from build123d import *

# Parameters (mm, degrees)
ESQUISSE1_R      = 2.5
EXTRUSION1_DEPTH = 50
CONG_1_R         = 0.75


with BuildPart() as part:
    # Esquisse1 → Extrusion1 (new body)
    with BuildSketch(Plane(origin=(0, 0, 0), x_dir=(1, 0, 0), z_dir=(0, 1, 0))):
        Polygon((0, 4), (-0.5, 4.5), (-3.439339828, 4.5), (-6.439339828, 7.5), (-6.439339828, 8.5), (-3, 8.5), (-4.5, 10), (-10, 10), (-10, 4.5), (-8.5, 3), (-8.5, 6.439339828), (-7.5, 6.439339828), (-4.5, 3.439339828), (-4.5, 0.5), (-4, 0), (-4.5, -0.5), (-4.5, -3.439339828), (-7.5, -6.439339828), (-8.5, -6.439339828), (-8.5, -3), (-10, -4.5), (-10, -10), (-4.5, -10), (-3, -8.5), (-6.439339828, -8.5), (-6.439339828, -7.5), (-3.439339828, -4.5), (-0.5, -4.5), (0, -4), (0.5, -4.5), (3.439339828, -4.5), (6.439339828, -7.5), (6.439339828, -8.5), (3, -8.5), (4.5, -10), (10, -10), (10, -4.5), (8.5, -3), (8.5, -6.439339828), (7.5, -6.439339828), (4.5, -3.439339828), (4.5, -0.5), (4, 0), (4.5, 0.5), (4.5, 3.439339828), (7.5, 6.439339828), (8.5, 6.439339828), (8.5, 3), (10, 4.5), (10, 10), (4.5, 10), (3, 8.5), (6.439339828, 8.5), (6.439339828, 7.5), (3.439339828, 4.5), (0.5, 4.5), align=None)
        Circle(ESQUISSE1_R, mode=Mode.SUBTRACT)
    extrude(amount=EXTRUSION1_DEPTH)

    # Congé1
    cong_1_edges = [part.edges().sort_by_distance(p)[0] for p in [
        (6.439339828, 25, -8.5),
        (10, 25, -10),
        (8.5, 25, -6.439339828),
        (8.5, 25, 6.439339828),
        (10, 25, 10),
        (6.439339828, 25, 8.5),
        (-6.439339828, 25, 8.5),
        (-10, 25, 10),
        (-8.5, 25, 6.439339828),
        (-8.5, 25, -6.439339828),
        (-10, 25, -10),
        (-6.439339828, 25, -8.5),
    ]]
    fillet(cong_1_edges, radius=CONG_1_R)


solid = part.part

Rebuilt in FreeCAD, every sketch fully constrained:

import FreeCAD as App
import Part
import Sketcher
from FreeCAD import Vector
Q = App.Units.Quantity


def edges_at(feature, points):
    """Names of the edges that pass closest to the given points."""
    edges = feature.Shape.Edges
    near = lambda p: min(range(len(edges)), key=lambda i: edges[i].distToShape(Part.Vertex(*p))[0])
    return sorted({f"Edge{near(p) + 1}" for p in points})

doc = App.newDocument("Part")
body = doc.addObject("PartDesign::Body", "Body")

# Sketch on XZ plane
sketch1 = body.newObject("Sketcher::SketchObject", "Sketch")
sketch1.AttachmentSupport = (doc.getObject("XZ_Plane"), [""])
sketch1.MapMode = "FlatFace"
sketch1.addGeometry([
    Part.LineSegment(Vector(0, -4, 0), Vector(-0.5, -4.5, 0)),  # 0
    Part.LineSegment(Vector(-0.5, -4.5, 0), Vector(-3.4, -4.5, 0)),  # 1
    Part.LineSegment(Vector(-3.4, -4.5, 0), Vector(-6.4, -7.5, 0)),  # 2
    Part.LineSegment(Vector(-6.4, -7.5, 0), Vector(-6.4, -8.5, 0)),  # 3
    Part.LineSegment(Vector(-6.4, -8.5, 0), Vector(-3, -8.5, 0)),  # 4
    Part.LineSegment(Vector(-3, -8.5, 0), Vector(-4.5, -10, 0)),  # 5
    Part.LineSegment(Vector(-4.5, -10, 0), Vector(-10, -10, 0)),  # 6
    Part.LineSegment(Vector(-10, -10, 0), Vector(-10, -4.5, 0)),  # 7
    Part.LineSegment(Vector(-10, -4.5, 0), Vector(-8.5, -3, 0)),  # 8
    Part.LineSegment(Vector(-8.5, -3, 0), Vector(-8.5, -6.4, 0)),  # 9
    Part.LineSegment(Vector(-8.5, -6.4, 0), Vector(-7.5, -6.4, 0)),  # 10
    Part.LineSegment(Vector(-7.5, -6.4, 0), Vector(-4.5, -3.4, 0)),  # 11
    Part.LineSegment(Vector(-4.5, -3.4, 0), Vector(-4.5, -0.5, 0)),  # 12
    Part.LineSegment(Vector(-4.5, -0.5, 0), Vector(-4, 0, 0)),  # 13
    Part.LineSegment(Vector(-4, 0, 0), Vector(-4.5, 0.5, 0)),  # 14
    Part.LineSegment(Vector(-4.5, 0.5, 0), Vector(-4.5, 3.4, 0)),  # 15
    Part.LineSegment(Vector(-4.5, 3.4, 0), Vector(-7.5, 6.4, 0)),  # 16
    Part.LineSegment(Vector(-7.5, 6.4, 0), Vector(-8.5, 6.4, 0)),  # 17
    Part.LineSegment(Vector(-8.5, 6.4, 0), Vector(-8.5, 3, 0)),  # 18
    Part.LineSegment(Vector(-8.5, 3, 0), Vector(-10, 4.5, 0)),  # 19
    Part.LineSegment(Vector(-10, 4.5, 0), Vector(-10, 10, 0)),  # 20
    Part.LineSegment(Vector(-10, 10, 0), Vector(-4.5, 10, 0)),  # 21
    Part.LineSegment(Vector(-4.5, 10, 0), Vector(-3, 8.5, 0)),  # 22
    Part.LineSegment(Vector(-3, 8.5, 0), Vector(-6.4, 8.5, 0)),  # 23
    Part.LineSegment(Vector(-6.4, 8.5, 0), Vector(-6.4, 7.5, 0)),  # 24
    Part.LineSegment(Vector(-6.4, 7.5, 0), Vector(-3.4, 4.5, 0)),  # 25
    Part.LineSegment(Vector(-3.4, 4.5, 0), Vector(-0.5, 4.5, 0)),  # 26
    Part.LineSegment(Vector(-0.5, 4.5, 0), Vector(0, 4, 0)),  # 27
    Part.LineSegment(Vector(0, 4, 0), Vector(0.5, 4.5, 0)),  # 28
    Part.LineSegment(Vector(0.5, 4.5, 0), Vector(3.4, 4.5, 0)),  # 29
    Part.LineSegment(Vector(3.4, 4.5, 0), Vector(6.4, 7.5, 0)),  # 30
    Part.LineSegment(Vector(6.4, 7.5, 0), Vector(6.4, 8.5, 0)),  # 31
    Part.LineSegment(Vector(6.4, 8.5, 0), Vector(3, 8.5, 0)),  # 32
    Part.LineSegment(Vector(3, 8.5, 0), Vector(4.5, 10, 0)),  # 33
    Part.LineSegment(Vector(4.5, 10, 0), Vector(10, 10, 0)),  # 34
    Part.LineSegment(Vector(10, 10, 0), Vector(10, 4.5, 0)),  # 35
    Part.LineSegment(Vector(10, 4.5, 0), Vector(8.5, 3, 0)),  # 36
    Part.LineSegment(Vector(8.5, 3, 0), Vector(8.5, 6.4, 0)),  # 37
    Part.LineSegment(Vector(8.5, 6.4, 0), Vector(7.5, 6.4, 0)),  # 38
    Part.LineSegment(Vector(7.5, 6.4, 0), Vector(4.5, 3.4, 0)),  # 39
    Part.LineSegment(Vector(4.5, 3.4, 0), Vector(4.5, 0.5, 0)),  # 40
    Part.LineSegment(Vector(4.5, 0.5, 0), Vector(4, 0, 0)),  # 41
    Part.LineSegment(Vector(4, 0, 0), Vector(4.5, -0.5, 0)),  # 42
    Part.LineSegment(Vector(4.5, -0.5, 0), Vector(4.5, -3.4, 0)),  # 43
    Part.LineSegment(Vector(4.5, -3.4, 0), Vector(7.5, -6.4, 0)),  # 44
    Part.LineSegment(Vector(7.5, -6.4, 0), Vector(8.5, -6.4, 0)),  # 45
    Part.LineSegment(Vector(8.5, -6.4, 0), Vector(8.5, -3, 0)),  # 46
    Part.LineSegment(Vector(8.5, -3, 0), Vector(10, -4.5, 0)),  # 47
    Part.LineSegment(Vector(10, -4.5, 0), Vector(10, -10, 0)),  # 48
    Part.LineSegment(Vector(10, -10, 0), Vector(4.5, -10, 0)),  # 49
    Part.LineSegment(Vector(4.5, -10, 0), Vector(3, -8.5, 0)),  # 50
    Part.LineSegment(Vector(3, -8.5, 0), Vector(6.4, -8.5, 0)),  # 51
    Part.LineSegment(Vector(6.4, -8.5, 0), Vector(6.4, -7.5, 0)),  # 52
    Part.LineSegment(Vector(6.4, -7.5, 0), Vector(3.4, -4.5, 0)),  # 53
    Part.LineSegment(Vector(3.4, -4.5, 0), Vector(0.5, -4.5, 0)),  # 54
    Part.LineSegment(Vector(0.5, -4.5, 0), Vector(0, -4, 0)),  # 55
    Part.Circle(Vector(0, 0, 0), Vector(0, 0, 1), 2.5),  # 56
], False)
sketch1.addConstraint([
    Sketcher.Constraint("Coincident", 0, 2, 1, 1),
    Sketcher.Constraint("Coincident", 1, 2, 2, 1),
    Sketcher.Constraint("Coincident", 2, 2, 3, 1),
    Sketcher.Constraint("Coincident", 3, 2, 4, 1),
    Sketcher.Constraint("Coincident", 4, 2, 5, 1),
    Sketcher.Constraint("Coincident", 5, 2, 6, 1),
    Sketcher.Constraint("Coincident", 6, 2, 7, 1),
    Sketcher.Constraint("Coincident", 7, 2, 8, 1),
    Sketcher.Constraint("Coincident", 8, 2, 9, 1),
    Sketcher.Constraint("Coincident", 9, 2, 10, 1),
    Sketcher.Constraint("Coincident", 10, 2, 11, 1),
    Sketcher.Constraint("Coincident", 11, 2, 12, 1),
    Sketcher.Constraint("Coincident", 12, 2, 13, 1),
    Sketcher.Constraint("Coincident", 13, 2, 14, 1),
    Sketcher.Constraint("Coincident", 14, 2, 15, 1),
    Sketcher.Constraint("Coincident", 15, 2, 16, 1),
    Sketcher.Constraint("Coincident", 16, 2, 17, 1),
    Sketcher.Constraint("Coincident", 17, 2, 18, 1),
    Sketcher.Constraint("Coincident", 18, 2, 19, 1),
    Sketcher.Constraint("Coincident", 19, 2, 20, 1),
    Sketcher.Constraint("Coincident", 20, 2, 21, 1),
    Sketcher.Constraint("Coincident", 21, 2, 22, 1),
    Sketcher.Constraint("Coincident", 22, 2, 23, 1),
    Sketcher.Constraint("Coincident", 23, 2, 24, 1),
    Sketcher.Constraint("Coincident", 24, 2, 25, 1),
    Sketcher.Constraint("Coincident", 25, 2, 26, 1),
    Sketcher.Constraint("Coincident", 26, 2, 27, 1),
    Sketcher.Constraint("Coincident", 27, 2, 28, 1),
    Sketcher.Constraint("Coincident", 28, 2, 29, 1),
    Sketcher.Constraint("Coincident", 29, 2, 30, 1),
    Sketcher.Constraint("Coincident", 30, 2, 31, 1),
    Sketcher.Constraint("Coincident", 31, 2, 32, 1),
    Sketcher.Constraint("Coincident", 32, 2, 33, 1),
    Sketcher.Constraint("Coincident", 33, 2, 34, 1),
    Sketcher.Constraint("Coincident", 34, 2, 35, 1),
    Sketcher.Constraint("Coincident", 35, 2, 36, 1),
    Sketcher.Constraint("Coincident", 36, 2, 37, 1),
    Sketcher.Constraint("Coincident", 37, 2, 38, 1),
    Sketcher.Constraint("Coincident", 38, 2, 39, 1),
    Sketcher.Constraint("Coincident", 39, 2, 40, 1),
    Sketcher.Constraint("Coincident", 40, 2, 41, 1),
    Sketcher.Constraint("Coincident", 41, 2, 42, 1),
    Sketcher.Constraint("Coincident", 42, 2, 43, 1),
    Sketcher.Constraint("Coincident", 43, 2, 44, 1),
    Sketcher.Constraint("Coincident", 44, 2, 45, 1),
    Sketcher.Constraint("Coincident", 45, 2, 46, 1),
    Sketcher.Constraint("Coincident", 46, 2, 47, 1),
    Sketcher.Constraint("Coincident", 47, 2, 48, 1),
    Sketcher.Constraint("Coincident", 48, 2, 49, 1),
    Sketcher.Constraint("Coincident", 49, 2, 50, 1),
    Sketcher.Constraint("Coincident", 50, 2, 51, 1),
    Sketcher.Constraint("Coincident", 51, 2, 52, 1),
    Sketcher.Constraint("Coincident", 52, 2, 53, 1),
    Sketcher.Constraint("Coincident", 53, 2, 54, 1),
    Sketcher.Constraint("Coincident", 54, 2, 55, 1),
    Sketcher.Constraint("Coincident", 55, 2, 0, 1),
    Sketcher.Constraint("Horizontal", 1),
    Sketcher.Constraint("Vertical", 3),
    Sketcher.Constraint("Horizontal", 4),
    Sketcher.Constraint("Horizontal", 6),
    Sketcher.Constraint("Vertical", 7),
    Sketcher.Constraint("Vertical", 9),
    Sketcher.Constraint("Horizontal", 10),
    Sketcher.Constraint("Vertical", 12),
    Sketcher.Constraint("Vertical", 15),
    Sketcher.Constraint("Horizontal", 17),
    Sketcher.Constraint("Vertical", 18),
    Sketcher.Constraint("Vertical", 20),
    Sketcher.Constraint("Horizontal", 21),
    Sketcher.Constraint("Horizontal", 23),
    Sketcher.Constraint("Vertical", 24),
    Sketcher.Constraint("Horizontal", 26),
    Sketcher.Constraint("Horizontal", 29),
    Sketcher.Constraint("Vertical", 31),
    Sketcher.Constraint("Horizontal", 32),
    Sketcher.Constraint("Horizontal", 34),
    Sketcher.Constraint("Vertical", 35),
    Sketcher.Constraint("Vertical", 37),
    Sketcher.Constraint("Horizontal", 38),
    Sketcher.Constraint("Vertical", 40),
    Sketcher.Constraint("Vertical", 43),
    Sketcher.Constraint("Horizontal", 45),
    Sketcher.Constraint("Vertical", 46),
    Sketcher.Constraint("Vertical", 48),
    Sketcher.Constraint("Horizontal", 49),
    Sketcher.Constraint("Horizontal", 51),
    Sketcher.Constraint("Vertical", 52),
    Sketcher.Constraint("Horizontal", 54),
    Sketcher.Constraint("Coincident", 56, 3, -1, 1),
    Sketcher.Constraint("Symmetric", 0, 2, 28, 2, -1, 1),
    Sketcher.Constraint("Symmetric", 2, 2, 30, 2, -1, 1),
    Sketcher.Constraint("Symmetric", 4, 2, 32, 2, -1, 1),
    Sketcher.Constraint("Symmetric", 5, 2, 33, 2, -1, 1),
    Sketcher.Constraint("Symmetric", 7, 2, 35, 2, -1, 1),
    Sketcher.Constraint("Symmetric", 8, 2, 36, 2, -1, 1),
    Sketcher.Constraint("Symmetric", 10, 2, 38, 2, -1, 1),
    Sketcher.Constraint("Symmetric", 11, 2, 39, 2, -1, 1),
    Sketcher.Constraint("Symmetric", 13, 2, 41, 2, -1, 1),
    Sketcher.Constraint("Symmetric", 14, 2, 42, 2, -1, 1),
    Sketcher.Constraint("Symmetric", 16, 2, 44, 2, -1, 1),
    Sketcher.Constraint("Symmetric", 18, 2, 46, 2, -1, 1),
    Sketcher.Constraint("Symmetric", 19, 2, 47, 2, -1, 1),
    Sketcher.Constraint("Symmetric", 21, 2, 49, 2, -1, 1),
    Sketcher.Constraint("Symmetric", 22, 2, 50, 2, -1, 1),
    Sketcher.Constraint("Symmetric", 24, 2, 52, 2, -1, 1),
    Sketcher.Constraint("Symmetric", 25, 2, 53, 2, -1, 1),
    Sketcher.Constraint("Symmetric", 27, 2, 55, 2, -1, 1),
    Sketcher.Constraint("Symmetric", 26, 2, 28, 2, -2),
    Sketcher.Constraint("Symmetric", 24, 2, 30, 2, -2),
    Sketcher.Constraint("Symmetric", 22, 2, 32, 2, -2),
    Sketcher.Constraint("Symmetric", 21, 2, 33, 2, -2),
    Sketcher.Constraint("Symmetric", 19, 2, 35, 2, -2),
    Sketcher.Constraint("Symmetric", 18, 2, 36, 2, -2),
    Sketcher.Constraint("Symmetric", 16, 2, 38, 2, -2),
    Sketcher.Constraint("Symmetric", 15, 2, 39, 2, -2),
    Sketcher.Constraint("PointOnObject", 13, 2, -1),
    Sketcher.Constraint("PointOnObject", 27, 2, -2),
    Sketcher.Constraint("Parallel", 0, 2),
    Sketcher.Constraint("Parallel", 2, 5),
    Sketcher.Constraint("Parallel", 5, 8),
    Sketcher.Constraint("Parallel", 8, 11),
    Sketcher.Constraint("Parallel", 11, 13),
    Sketcher.Constraint("Perpendicular", 13, 14),
    Sketcher.Constraint("Parallel", 14, 16),
    Sketcher.Constraint("Parallel", 22, 25),
    Sketcher.Constraint("Parallel", 28, 30),
    Sketcher.Constraint("Parallel", 39, 41),
    Sketcher.Constraint("Parallel", 42, 44),
    Sketcher.Constraint("Parallel", 53, 55),
    Sketcher.Constraint("Horizontal", 1, 2, 7, 2),
    Sketcher.Constraint("Vertical", 5, 2, 11, 2),
    Sketcher.Constraint("Equal", 45, 3),
    Sketcher.Constraint("Equal", 49, 7),
    Sketcher.Constraint("Equal", 51, 9),
    Sketcher.Constraint("Equal", 54, 12),
    Sketcher.Constraint("Equal", 5, 8),
    Sketcher.Constraint("Equal", 0, 13),
    Sketcher.Constraint("Diameter", 56, Q("5 mm")),
    Sketcher.Constraint("DistanceX", 10, 1, 10, 2, Q("1 mm")),
    Sketcher.Constraint("DistanceX", 6, 2, 6, 1, Q("5.5 mm")),
    Sketcher.Constraint("DistanceX", 4, 2, -1, 1, Q("3 mm")),
    Sketcher.Constraint("DistanceY", 5, 2, -1, 1, Q("10 mm")),
    Sketcher.Constraint("DistanceX", 13, 2, -1, 1, Q("4 mm")),
    Sketcher.Constraint("DistanceX", 1, 2, 1, 1, Q("2.93934 mm")),
])
pad1 = body.newObject("PartDesign::Pad", "Pad")
pad1.Profile = sketch1
pad1.Length = 50
pad1.Reversed = True
doc.recompute()

fillet = body.newObject("PartDesign::Fillet", "Fillet")
fillet.Base = (pad1, edges_at(pad1, [
    (6.439, 25, -8.5),
    (10, 25, -10),
    (8.5, 25, -6.439),
    (8.5, 25, 6.439),
    (10, 25, 10),
    (6.439, 25, 8.5),
    (-6.439, 25, 8.5),
    (-10, 25, 10),
    (-8.5, 25, 6.439),
    (-8.5, 25, -6.439),
    (-10, 25, -10),
    (-6.439, 25, -8.5),
]))
fillet.Radius = 0.75

doc.recompute()
